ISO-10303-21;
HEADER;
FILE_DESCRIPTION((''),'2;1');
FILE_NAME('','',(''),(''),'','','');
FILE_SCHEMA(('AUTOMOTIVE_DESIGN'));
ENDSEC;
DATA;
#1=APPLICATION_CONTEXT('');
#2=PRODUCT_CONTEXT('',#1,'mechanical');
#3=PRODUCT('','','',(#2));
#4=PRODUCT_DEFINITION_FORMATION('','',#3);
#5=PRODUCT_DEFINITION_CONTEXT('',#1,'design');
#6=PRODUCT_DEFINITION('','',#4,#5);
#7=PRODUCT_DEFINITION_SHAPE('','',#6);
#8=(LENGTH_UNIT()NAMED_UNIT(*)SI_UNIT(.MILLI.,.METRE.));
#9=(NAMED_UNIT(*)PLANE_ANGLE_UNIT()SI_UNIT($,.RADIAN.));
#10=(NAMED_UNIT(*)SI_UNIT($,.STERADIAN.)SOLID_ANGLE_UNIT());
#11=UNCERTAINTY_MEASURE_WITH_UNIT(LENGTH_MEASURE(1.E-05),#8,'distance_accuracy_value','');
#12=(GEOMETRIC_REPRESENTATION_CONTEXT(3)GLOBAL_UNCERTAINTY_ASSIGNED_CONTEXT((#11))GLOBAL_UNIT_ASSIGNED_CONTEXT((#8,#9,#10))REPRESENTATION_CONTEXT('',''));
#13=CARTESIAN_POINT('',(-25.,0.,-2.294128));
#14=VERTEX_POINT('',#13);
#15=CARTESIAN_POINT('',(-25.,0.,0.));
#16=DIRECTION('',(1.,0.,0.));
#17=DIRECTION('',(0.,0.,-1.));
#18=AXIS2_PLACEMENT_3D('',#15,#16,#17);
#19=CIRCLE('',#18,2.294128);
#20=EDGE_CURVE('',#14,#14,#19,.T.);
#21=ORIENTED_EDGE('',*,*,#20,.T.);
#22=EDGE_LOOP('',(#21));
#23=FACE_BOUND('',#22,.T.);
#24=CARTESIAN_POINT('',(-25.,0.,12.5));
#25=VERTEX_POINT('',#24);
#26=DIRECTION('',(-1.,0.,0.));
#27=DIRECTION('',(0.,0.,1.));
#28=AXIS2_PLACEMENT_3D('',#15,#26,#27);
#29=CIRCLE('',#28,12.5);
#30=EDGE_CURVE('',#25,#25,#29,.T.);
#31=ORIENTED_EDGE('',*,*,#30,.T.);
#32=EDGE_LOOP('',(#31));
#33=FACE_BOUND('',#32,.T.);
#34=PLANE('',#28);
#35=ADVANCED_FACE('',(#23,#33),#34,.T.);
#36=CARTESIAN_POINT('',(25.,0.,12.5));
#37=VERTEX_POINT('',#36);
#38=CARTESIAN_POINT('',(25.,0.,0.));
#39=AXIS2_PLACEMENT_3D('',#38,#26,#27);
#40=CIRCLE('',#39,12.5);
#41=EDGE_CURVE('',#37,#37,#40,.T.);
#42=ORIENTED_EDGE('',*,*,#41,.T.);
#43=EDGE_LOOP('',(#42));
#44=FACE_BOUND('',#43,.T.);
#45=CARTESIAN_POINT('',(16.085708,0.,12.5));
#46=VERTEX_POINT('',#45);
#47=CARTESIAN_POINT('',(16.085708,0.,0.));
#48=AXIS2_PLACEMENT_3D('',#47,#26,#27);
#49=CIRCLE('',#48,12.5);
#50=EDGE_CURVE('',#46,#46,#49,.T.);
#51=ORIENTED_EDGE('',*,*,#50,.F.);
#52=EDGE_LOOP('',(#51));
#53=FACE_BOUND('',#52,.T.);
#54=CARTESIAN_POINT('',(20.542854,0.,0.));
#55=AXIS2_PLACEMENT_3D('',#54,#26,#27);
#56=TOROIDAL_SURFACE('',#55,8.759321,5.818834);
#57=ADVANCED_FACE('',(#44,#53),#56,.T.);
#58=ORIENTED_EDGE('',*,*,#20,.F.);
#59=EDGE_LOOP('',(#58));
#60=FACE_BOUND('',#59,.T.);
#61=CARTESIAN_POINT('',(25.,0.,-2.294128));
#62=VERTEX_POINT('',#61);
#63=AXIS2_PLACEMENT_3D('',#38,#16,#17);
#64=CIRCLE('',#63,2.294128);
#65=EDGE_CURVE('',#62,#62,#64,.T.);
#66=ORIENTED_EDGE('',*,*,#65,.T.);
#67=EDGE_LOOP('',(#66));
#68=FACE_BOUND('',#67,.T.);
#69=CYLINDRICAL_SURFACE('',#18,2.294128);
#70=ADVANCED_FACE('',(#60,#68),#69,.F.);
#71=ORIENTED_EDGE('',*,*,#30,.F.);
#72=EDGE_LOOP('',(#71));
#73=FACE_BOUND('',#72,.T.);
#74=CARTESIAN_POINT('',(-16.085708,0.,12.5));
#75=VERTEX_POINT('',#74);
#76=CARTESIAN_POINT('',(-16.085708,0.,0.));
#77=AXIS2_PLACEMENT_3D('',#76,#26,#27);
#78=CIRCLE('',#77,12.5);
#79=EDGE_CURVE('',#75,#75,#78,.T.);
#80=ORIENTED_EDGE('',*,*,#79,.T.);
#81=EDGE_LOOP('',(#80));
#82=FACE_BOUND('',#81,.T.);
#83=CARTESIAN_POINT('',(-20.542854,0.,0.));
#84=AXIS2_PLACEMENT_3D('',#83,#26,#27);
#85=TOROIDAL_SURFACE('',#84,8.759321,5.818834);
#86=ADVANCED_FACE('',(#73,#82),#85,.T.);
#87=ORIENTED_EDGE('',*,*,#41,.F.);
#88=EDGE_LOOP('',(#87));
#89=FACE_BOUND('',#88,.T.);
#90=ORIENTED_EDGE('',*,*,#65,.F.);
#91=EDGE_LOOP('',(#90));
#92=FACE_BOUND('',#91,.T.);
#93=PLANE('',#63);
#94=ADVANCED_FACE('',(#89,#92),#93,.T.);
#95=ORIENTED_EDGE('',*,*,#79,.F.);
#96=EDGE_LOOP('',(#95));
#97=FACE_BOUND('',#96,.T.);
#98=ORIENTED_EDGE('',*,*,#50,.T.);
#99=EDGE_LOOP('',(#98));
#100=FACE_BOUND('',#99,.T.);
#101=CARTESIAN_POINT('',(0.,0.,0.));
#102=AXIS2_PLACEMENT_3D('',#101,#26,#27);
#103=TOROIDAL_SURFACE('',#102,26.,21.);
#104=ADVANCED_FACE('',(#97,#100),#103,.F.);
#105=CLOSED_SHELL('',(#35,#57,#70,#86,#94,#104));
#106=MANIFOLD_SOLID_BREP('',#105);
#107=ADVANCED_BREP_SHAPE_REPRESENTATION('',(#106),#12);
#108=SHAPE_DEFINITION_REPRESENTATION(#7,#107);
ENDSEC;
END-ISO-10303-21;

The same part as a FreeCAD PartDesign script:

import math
import FreeCAD as App
import Part
import Sketcher

V = App.Vector
Q = App.Units.Quantity

doc = App.newDocument("Part")
body = doc.addObject("PartDesign::Body", "Body")

sketch1 = body.newObject("Sketcher::SketchObject", "Sketch")
sketch1.AttachmentSupport = (doc.getObject("XY_Plane"), [""])
sketch1.MapMode = "FlatFace"
sketch1.addGeometry(Part.LineSegment(V(25, 0, 0), V(-25, 0, 0)), False)
sketch1.addGeometry(Part.LineSegment(V(-25, 0, 0), V(-25, -12, 0)), False)
sketch1.addGeometry(Part.ArcOfCircle(Part.Circle(V(-21, -9, 0), V(0, 0, 1), 6), math.radians(-140), math.radians(-40)), False)
sketch1.addGeometry(Part.ArcOfCircle(Part.Circle(V(0, -26, 0), V(0, 0, 1), 21), math.radians(40), math.radians(140)), False)
sketch1.addGeometry(Part.ArcOfCircle(Part.Circle(V(21, -9, 0), V(0, 0, 1), 6), math.radians(-140), math.radians(-40)), False)
sketch1.addGeometry(Part.LineSegment(V(25, -12, 0), V(25, 0, 0)), False)
sketch1.addConstraint(Sketcher.Constraint("Coincident", 0, 2, 1, 1))
sketch1.addConstraint(Sketcher.Constraint("Coincident", 1, 2, 2, 1))
sketch1.addConstraint(Sketcher.Constraint("Tangent", 2, 2, 3, 2))
sketch1.addConstraint(Sketcher.Constraint("Tangent", 3, 1, 4, 1))
sketch1.addConstraint(Sketcher.Constraint("Coincident", 4, 2, 5, 1))
sketch1.addConstraint(Sketcher.Constraint("Coincident", 5, 2, 0, 1))
sketch1.addConstraint(Sketcher.Constraint("Horizontal", 0))
sketch1.addConstraint(Sketcher.Constraint("Vertical", 1))
sketch1.addConstraint(Sketcher.Constraint("Vertical", 5))
sketch1.addConstraint(Sketcher.Constraint("Equal", 2, 4))
sketch1.addConstraint(Sketcher.Constraint("Symmetric", 0, 2, 5, 2, -1, 1))
sketch1.addConstraint(Sketcher.Constraint("Symmetric", 2, 3, 4, 3, -2))
sketch1.addConstraint(Sketcher.Constraint("Horizontal", 1, 2, 2, 2))
sketch1.addConstraint(Sketcher.Constraint("Radius", 3, Q("21 mm")))
sketch1.addConstraint(Sketcher.Constraint("DistanceX", 0, 2, 0, 1, Q("50 mm")))
sketch1.addConstraint(Sketcher.Constraint("DistanceY", 1, 2, 1, 1, Q("12.5 mm")))
sketch1.addConstraint(Sketcher.Constraint("DistanceY", 3, 3, -1, 1, Q("26 mm")))
revolution = body.newObject("PartDesign::Revolution", "Revolution")
revolution.Profile = sketch1
revolution.ReferenceAxis = (sketch1, ["H_Axis"])
revolution.Angle = 360

sketch2 = body.newObject("Sketcher::SketchObject", "Sketch001")
sketch2.AttachmentSupport = (doc.getObject("YZ_Plane"), [""])
sketch2.MapMode = "FlatFace"
sketch2.AttachmentOffset = App.Placement(V(0, 0, 25), App.Rotation())
sketch2.addGeometry(Part.Circle(V(0, 0, 0), V(0, 0, 1), 2.3), False)
sketch2.addConstraint(Sketcher.Constraint("Coincident", 0, 3, -1, 1))
sketch2.addConstraint(Sketcher.Constraint("Diameter", 0, Q("4.588255 mm")))
pocket1 = body.newObject("PartDesign::Pocket", "Pocket")
pocket1.Profile = sketch2
pocket1.Type = "ThroughAll"

doc.recompute()
